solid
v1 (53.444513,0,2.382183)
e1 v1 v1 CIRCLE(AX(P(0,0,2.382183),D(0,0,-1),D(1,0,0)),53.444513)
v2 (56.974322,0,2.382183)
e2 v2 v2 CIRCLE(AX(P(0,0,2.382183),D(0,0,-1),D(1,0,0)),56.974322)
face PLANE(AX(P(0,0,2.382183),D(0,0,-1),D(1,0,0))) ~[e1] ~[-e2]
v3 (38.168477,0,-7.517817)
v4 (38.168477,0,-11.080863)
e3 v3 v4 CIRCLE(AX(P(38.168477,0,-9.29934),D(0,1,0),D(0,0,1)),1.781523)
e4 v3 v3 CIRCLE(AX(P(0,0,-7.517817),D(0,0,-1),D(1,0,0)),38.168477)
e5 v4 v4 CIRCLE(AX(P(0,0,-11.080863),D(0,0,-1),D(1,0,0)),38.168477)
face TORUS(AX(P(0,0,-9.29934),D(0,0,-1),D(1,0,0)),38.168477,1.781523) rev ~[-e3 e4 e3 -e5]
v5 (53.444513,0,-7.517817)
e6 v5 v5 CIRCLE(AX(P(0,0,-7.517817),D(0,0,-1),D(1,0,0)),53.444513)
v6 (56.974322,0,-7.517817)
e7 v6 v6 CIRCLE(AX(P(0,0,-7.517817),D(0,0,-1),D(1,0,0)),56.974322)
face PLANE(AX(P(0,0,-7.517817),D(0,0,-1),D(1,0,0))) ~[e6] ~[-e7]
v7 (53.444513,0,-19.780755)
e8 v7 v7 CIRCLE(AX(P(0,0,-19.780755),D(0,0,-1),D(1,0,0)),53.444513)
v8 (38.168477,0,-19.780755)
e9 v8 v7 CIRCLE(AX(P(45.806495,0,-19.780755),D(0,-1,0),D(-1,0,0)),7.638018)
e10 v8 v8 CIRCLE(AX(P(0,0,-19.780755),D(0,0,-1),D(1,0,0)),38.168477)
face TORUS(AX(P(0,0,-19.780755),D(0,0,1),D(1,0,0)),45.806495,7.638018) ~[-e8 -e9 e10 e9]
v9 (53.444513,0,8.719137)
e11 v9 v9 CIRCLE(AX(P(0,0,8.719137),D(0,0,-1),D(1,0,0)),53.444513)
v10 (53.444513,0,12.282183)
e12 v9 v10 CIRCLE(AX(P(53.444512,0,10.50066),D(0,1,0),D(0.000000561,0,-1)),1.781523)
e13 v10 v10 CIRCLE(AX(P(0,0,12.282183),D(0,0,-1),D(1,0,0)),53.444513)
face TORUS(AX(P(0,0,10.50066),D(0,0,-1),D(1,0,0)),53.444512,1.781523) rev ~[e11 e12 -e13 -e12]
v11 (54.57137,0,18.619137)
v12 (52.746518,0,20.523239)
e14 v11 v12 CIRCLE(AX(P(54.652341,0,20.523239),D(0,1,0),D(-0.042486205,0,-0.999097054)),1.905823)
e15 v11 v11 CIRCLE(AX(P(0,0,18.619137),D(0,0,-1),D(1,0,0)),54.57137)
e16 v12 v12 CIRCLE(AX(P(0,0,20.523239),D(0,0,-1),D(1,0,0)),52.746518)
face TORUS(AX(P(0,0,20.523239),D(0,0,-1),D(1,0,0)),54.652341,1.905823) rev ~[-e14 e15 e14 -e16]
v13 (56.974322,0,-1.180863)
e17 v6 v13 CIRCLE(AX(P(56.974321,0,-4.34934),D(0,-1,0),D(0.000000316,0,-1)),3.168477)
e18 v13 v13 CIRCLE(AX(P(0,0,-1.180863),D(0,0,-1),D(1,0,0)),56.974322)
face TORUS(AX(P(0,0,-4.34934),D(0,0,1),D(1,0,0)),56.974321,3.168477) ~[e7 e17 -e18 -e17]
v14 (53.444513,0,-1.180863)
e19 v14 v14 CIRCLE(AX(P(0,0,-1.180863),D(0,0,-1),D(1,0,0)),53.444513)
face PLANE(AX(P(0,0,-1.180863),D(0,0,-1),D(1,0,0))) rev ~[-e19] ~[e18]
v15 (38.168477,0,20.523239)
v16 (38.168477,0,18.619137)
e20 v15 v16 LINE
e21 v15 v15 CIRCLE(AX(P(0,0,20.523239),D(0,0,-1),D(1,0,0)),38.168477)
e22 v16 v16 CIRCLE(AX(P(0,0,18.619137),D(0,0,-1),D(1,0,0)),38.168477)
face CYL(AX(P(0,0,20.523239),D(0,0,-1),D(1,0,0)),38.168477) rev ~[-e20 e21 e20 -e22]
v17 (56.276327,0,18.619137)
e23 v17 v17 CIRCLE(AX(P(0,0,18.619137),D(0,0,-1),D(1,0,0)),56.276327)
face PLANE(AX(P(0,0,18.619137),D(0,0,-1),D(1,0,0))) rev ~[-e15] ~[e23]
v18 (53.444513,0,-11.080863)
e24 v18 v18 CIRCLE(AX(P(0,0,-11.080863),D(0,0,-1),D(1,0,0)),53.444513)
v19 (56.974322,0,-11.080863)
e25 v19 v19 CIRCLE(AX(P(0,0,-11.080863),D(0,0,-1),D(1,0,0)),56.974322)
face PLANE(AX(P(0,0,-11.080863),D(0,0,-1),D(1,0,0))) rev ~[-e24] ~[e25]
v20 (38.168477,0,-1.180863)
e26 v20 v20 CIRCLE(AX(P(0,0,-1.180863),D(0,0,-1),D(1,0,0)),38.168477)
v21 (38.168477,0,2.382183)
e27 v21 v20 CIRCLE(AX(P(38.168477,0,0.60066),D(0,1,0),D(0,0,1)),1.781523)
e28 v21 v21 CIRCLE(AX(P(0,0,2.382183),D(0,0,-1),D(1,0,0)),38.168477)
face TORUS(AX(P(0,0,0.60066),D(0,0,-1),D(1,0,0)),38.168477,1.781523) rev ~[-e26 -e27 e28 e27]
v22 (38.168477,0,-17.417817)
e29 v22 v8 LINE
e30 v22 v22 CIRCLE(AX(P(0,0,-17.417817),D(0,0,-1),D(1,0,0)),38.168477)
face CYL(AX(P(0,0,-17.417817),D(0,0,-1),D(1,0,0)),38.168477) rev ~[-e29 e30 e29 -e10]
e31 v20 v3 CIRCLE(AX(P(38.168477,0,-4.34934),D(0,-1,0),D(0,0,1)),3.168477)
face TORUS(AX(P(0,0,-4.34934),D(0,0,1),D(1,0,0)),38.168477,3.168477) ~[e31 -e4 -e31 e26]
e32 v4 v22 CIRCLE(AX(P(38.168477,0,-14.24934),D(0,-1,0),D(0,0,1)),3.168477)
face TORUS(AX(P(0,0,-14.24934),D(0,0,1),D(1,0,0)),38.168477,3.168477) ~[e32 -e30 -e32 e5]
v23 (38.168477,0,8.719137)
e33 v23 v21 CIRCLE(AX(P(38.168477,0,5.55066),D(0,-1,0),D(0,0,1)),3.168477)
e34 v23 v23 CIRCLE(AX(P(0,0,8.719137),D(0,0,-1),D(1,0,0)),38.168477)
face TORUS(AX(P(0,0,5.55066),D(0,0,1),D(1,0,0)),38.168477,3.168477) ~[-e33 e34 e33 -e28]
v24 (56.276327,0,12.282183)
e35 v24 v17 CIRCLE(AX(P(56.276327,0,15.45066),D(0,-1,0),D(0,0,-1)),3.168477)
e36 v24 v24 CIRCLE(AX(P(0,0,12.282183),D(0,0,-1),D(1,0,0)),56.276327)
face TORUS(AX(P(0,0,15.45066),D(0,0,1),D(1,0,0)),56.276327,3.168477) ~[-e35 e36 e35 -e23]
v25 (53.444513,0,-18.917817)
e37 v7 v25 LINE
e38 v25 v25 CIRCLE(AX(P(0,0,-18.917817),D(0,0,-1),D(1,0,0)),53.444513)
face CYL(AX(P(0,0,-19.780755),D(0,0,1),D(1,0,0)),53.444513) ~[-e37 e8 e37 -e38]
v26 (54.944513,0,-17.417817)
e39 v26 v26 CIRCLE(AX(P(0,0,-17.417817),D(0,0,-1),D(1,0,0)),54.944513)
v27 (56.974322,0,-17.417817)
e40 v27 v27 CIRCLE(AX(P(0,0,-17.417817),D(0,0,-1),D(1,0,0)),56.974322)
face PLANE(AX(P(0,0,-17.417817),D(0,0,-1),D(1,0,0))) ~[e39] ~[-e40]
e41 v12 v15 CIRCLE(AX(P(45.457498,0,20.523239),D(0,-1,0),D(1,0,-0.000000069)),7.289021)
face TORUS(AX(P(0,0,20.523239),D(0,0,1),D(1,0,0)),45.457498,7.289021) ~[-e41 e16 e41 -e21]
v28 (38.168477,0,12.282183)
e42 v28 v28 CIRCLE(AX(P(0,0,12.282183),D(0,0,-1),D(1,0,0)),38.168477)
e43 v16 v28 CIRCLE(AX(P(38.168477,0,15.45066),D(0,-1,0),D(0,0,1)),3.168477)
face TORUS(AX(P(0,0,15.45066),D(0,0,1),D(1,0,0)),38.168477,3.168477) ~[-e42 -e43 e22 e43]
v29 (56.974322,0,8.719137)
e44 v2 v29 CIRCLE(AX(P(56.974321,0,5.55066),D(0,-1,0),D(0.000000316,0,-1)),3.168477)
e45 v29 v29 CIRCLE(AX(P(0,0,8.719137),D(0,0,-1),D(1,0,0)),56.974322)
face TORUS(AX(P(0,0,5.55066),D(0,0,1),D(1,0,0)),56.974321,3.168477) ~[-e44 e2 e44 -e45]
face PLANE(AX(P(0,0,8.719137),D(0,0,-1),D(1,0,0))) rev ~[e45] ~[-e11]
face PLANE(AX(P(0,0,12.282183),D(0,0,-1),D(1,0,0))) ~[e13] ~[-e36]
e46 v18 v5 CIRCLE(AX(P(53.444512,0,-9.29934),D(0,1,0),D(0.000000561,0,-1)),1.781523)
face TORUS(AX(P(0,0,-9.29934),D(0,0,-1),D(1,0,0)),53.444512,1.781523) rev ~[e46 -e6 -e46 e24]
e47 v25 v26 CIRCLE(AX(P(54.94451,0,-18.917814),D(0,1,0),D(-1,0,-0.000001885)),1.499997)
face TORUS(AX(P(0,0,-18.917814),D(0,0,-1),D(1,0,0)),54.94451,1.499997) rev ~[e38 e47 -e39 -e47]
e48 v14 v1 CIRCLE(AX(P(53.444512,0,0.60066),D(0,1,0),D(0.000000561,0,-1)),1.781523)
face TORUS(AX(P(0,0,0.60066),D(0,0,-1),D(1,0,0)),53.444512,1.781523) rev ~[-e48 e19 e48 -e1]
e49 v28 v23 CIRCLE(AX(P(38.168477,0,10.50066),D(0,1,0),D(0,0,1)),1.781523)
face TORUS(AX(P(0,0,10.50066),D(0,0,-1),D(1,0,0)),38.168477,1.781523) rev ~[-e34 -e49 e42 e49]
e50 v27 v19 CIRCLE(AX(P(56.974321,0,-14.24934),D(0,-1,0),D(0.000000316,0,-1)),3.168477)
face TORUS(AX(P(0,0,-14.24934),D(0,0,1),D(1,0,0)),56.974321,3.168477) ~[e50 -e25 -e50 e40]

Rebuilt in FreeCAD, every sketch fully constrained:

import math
import FreeCAD as App
import Part
import Sketcher

V = App.Vector
Q = App.Units.Quantity

doc = App.newDocument("Part")
body = doc.addObject("PartDesign::Body", "Body")

# Sketch on XZ plane
sketch1 = doc.addObject("Sketcher::SketchObject", "Sketch")
body.addObject(sketch1)
sketch1.AttachmentSupport = (doc.XZ_Plane, [""])
sketch1.MapMode = "FlatFace"
sketch1.addGeometry([
    Part.ArcOfCircle(Part.Circle(V(45.5, 20.5, 0), V(0, 0, 1), 7.3), math.radians(0), math.radians(180)),  # 0
    Part.LineSegment(V(38.2, 20.5, 0), V(38.2, 18.6, 0)),  # 1
    Part.ArcOfCircle(Part.Circle(V(38.2, 15.5, 0), V(0, 0, 1), 3.2), math.radians(90), math.radians(270)),  # 2
    Part.ArcOfCircle(Part.Circle(V(38.2, 10.5, 0), V(0, 0, 1), 1.8), math.radians(-90), math.radians(90)),  # 3
    Part.ArcOfCircle(Part.Circle(V(38.2, 5.6, 0), V(0, 0, 1), 3.2), math.radians(90), math.radians(270)),  # 4
    Part.ArcOfCircle(Part.Circle(V(38.2, 0.6, 0), V(0, 0, 1), 1.8), math.radians(-90), math.radians(90)),  # 5
    Part.ArcOfCircle(Part.Circle(V(38.2, -4.3, 0), V(0, 0, 1), 3.2), math.radians(90), math.radians(270)),  # 6
    Part.ArcOfCircle(Part.Circle(V(38.2, -9.3, 0), V(0, 0, 1), 1.8), math.radians(-90), math.radians(90)),  # 7
    Part.ArcOfCircle(Part.Circle(V(38.2, -14.2, 0), V(0, 0, 1), 3.2), math.radians(90), math.radians(270)),  # 8
    Part.LineSegment(V(38.2, -17.4, 0), V(38.2, -19.8, 0)),  # 9
    Part.ArcOfCircle(Part.Circle(V(45.8, -19.8, 0), V(0, 0, 1), 7.6), math.radians(180), math.radians(360)),  # 10
    Part.LineSegment(V(53.4, -19.8, 0), V(53.4, -18.9, 0)),  # 11
    Part.ArcOfCircle(Part.Circle(V(54.9, -18.9, 0), V(0, 0, 1), 1.5), math.radians(90), math.radians(180)),  # 12
    Part.LineSegment(V(54.9, -17.4, 0), V(57, -17.4, 0)),  # 13
    Part.ArcOfCircle(Part.Circle(V(57, -14.2, 0), V(0, 0, 1), 3.2), math.radians(-90), math.radians(90)),  # 14
    Part.LineSegment(V(57, -11.1, 0), V(53.4, -11.1, 0)),  # 15
    Part.ArcOfCircle(Part.Circle(V(53.4, -9.3, 0), V(0, 0, 1), 1.8), math.radians(90), math.radians(270)),  # 16
    Part.LineSegment(V(53.4, -7.5, 0), V(57, -7.5, 0)),  # 17
    Part.ArcOfCircle(Part.Circle(V(57, -4.3, 0), V(0, 0, 1), 3.2), math.radians(-90), math.radians(90)),  # 18
    Part.LineSegment(V(57, -1.2, 0), V(53.4, -1.2, 0)),  # 19
    Part.ArcOfCircle(Part.Circle(V(53.4, 0.6, 0), V(0, 0, 1), 1.8), math.radians(90), math.radians(270)),  # 20
    Part.LineSegment(V(53.4, 2.4, 0), V(57, 2.4, 0)),  # 21
    Part.ArcOfCircle(Part.Circle(V(57, 5.6, 0), V(0, 0, 1), 3.2), math.radians(-90), math.radians(90)),  # 22
    Part.LineSegment(V(57, 8.7, 0), V(53.4, 8.7, 0)),  # 23
    Part.ArcOfCircle(Part.Circle(V(53.4, 10.5, 0), V(0, 0, 1), 1.8), math.radians(90), math.radians(270)),  # 24
    Part.LineSegment(V(53.4, 12.3, 0), V(56.3, 12.3, 0)),  # 25
    Part.ArcOfCircle(Part.Circle(V(56.3, 15.5, 0), V(0, 0, 1), 3.2), math.radians(-90), math.radians(90)),  # 26
    Part.LineSegment(V(56.3, 18.6, 0), V(54.6, 18.6, 0)),  # 27
    Part.ArcOfCircle(Part.Circle(V(54.7, 20.5, 0), V(0, 0, 1), 1.9), math.radians(-180), math.radians(-92)),  # 28
], False)
sketch1.addConstraint([
    Sketcher.Constraint("Tangent", 0, 2, 1, 1),
    Sketcher.Constraint("Coincident", 1, 2, 2, 1),
    Sketcher.Constraint("Tangent", 2, 2, 3, 2),
    Sketcher.Constraint("Tangent", 3, 1, 4, 1),
    Sketcher.Constraint("Tangent", 4, 2, 5, 2),
    Sketcher.Constraint("Tangent", 5, 1, 6, 1),
    Sketcher.Constraint("Tangent", 6, 2, 7, 2),
    Sketcher.Constraint("Tangent", 7, 1, 8, 1),
    Sketcher.Constraint("Coincident", 8, 2, 9, 1),
    Sketcher.Constraint("Tangent", 9, 2, 10, 1),
    Sketcher.Constraint("Tangent", 10, 2, 11, 1),
    Sketcher.Constraint("Tangent", 11, 2, 12, 2),
    Sketcher.Constraint("Tangent", 12, 1, 13, 1),
    Sketcher.Constraint("Tangent", 13, 2, 14, 1),
    Sketcher.Constraint("Tangent", 14, 2, 15, 1),
    Sketcher.Constraint("Tangent", 15, 2, 16, 2),
    Sketcher.Constraint("Tangent", 16, 1, 17, 1),
    Sketcher.Constraint("Tangent", 17, 2, 18, 1),
    Sketcher.Constraint("Tangent", 18, 2, 19, 1),
    Sketcher.Constraint("Tangent", 19, 2, 20, 2),
    Sketcher.Constraint("Tangent", 20, 1, 21, 1),
    Sketcher.Constraint("Tangent", 21, 2, 22, 1),
    Sketcher.Constraint("Tangent", 22, 2, 23, 1),
    Sketcher.Constraint("Tangent", 23, 2, 24, 2),
    Sketcher.Constraint("Tangent", 24, 1, 25, 1),
    Sketcher.Constraint("Tangent", 25, 2, 26, 1),
    Sketcher.Constraint("Tangent", 26, 2, 27, 1),
    Sketcher.Constraint("Coincident", 27, 2, 28, 2),
    Sketcher.Constraint("Tangent", 28, 1, 0, 1),
    Sketcher.Constraint("Vertical", 1),
    Sketcher.Constraint("Vertical", 9),
    Sketcher.Constraint("Vertical", 11),
    Sketcher.Constraint("Horizontal", 13),
    Sketcher.Constraint("Horizontal", 15),
    Sketcher.Constraint("Horizontal", 17),
    Sketcher.Constraint("Horizontal", 19),
    Sketcher.Constraint("Horizontal", 21),
    Sketcher.Constraint("Horizontal", 23),
    Sketcher.Constraint("Horizontal", 25),
    Sketcher.Constraint("Horizontal", 27),
    Sketcher.Constraint("Equal", 2, 4),
    Sketcher.Constraint("Equal", 3, 5),
    Sketcher.Constraint("Equal", 4, 6),
    Sketcher.Constraint("Equal", 5, 7),
    Sketcher.Constraint("Equal", 6, 8),
    Sketcher.Constraint("Equal", 8, 14),
    Sketcher.Constraint("Equal", 7, 16),
    Sketcher.Constraint("Equal", 14, 18),
    Sketcher.Constraint("Equal", 16, 20),
    Sketcher.Constraint("Equal", 18, 22),
    Sketcher.Constraint("Equal", 20, 24),
    Sketcher.Constraint("Equal", 22, 26),
    Sketcher.Constraint("Horizontal", 8, 3, 14, 3),
    Sketcher.Constraint("Horizontal", 0, 3, 28, 3),
    Sketcher.Constraint("Vertical", 2, 3, 3, 3),
    Sketcher.Constraint("Vertical", 3, 3, 4, 3),
    Sketcher.Constraint("Vertical", 4, 3, 5, 3),
    Sketcher.Constraint("Vertical", 5, 3, 6, 3),
    Sketcher.Constraint("Vertical", 6, 3, 7, 3),
    Sketcher.Constraint("Vertical", 7, 3, 8, 3),
    Sketcher.Constraint("Vertical", 14, 3, 18, 3),
    Sketcher.Constraint("Vertical", 16, 3, 20, 3),
    Sketcher.Constraint("Vertical", 18, 3, 22, 3),
    Sketcher.Constraint("Vertical", 20, 3, 24, 3),
    Sketcher.Constraint("Vertical", 8, 3, 0, 2),
    Sketcher.Constraint("Vertical", 7, 1, 8, 2),
    Sketcher.Constraint("Vertical", 24, 3, 10, 2),
    Sketcher.Constraint("DistanceY", 4, 3, 2, 3, Q("9.9 mm")),
    Sketcher.Constraint("DistanceX", 16, 3, 12, 3, Q("1.499998 mm")),
    Sketcher.Constraint("Radius", 0, Q("7.289021 mm")),
    Sketcher.Constraint("Radius", 2, Q("3.168477 mm")),
    Sketcher.Constraint("Radius", 10, Q("7.638018 mm")),
    Sketcher.Constraint("Radius", 28, Q("1.905823 mm")),
    Sketcher.Constraint("DistanceX", 13, 1, 13, 2, Q("2.029809 mm")),
    Sketcher.Constraint("DistanceX", 25, 1, 25, 2, Q("2.831814 mm")),
    Sketcher.Constraint("DistanceX", 27, 2, 27, 1, Q("1.704957 mm")),
    Sketcher.Constraint("DistanceY", 9, 2, 9, 1, Q("2.362938 mm")),
    Sketcher.Constraint("DistanceY", -1, 1, 0, 3, Q("20.523239 mm")),
    Sketcher.Constraint("DistanceX", -1, 1, 12, 3, Q("54.94451 mm")),
])
revolution = doc.addObject("PartDesign::Revolution", "Revolution")
body.addObject(revolution)
revolution.Profile = sketch1
revolution.ReferenceAxis = (sketch1, ["V_Axis"])
revolution.Angle = 360

doc.recompute()
